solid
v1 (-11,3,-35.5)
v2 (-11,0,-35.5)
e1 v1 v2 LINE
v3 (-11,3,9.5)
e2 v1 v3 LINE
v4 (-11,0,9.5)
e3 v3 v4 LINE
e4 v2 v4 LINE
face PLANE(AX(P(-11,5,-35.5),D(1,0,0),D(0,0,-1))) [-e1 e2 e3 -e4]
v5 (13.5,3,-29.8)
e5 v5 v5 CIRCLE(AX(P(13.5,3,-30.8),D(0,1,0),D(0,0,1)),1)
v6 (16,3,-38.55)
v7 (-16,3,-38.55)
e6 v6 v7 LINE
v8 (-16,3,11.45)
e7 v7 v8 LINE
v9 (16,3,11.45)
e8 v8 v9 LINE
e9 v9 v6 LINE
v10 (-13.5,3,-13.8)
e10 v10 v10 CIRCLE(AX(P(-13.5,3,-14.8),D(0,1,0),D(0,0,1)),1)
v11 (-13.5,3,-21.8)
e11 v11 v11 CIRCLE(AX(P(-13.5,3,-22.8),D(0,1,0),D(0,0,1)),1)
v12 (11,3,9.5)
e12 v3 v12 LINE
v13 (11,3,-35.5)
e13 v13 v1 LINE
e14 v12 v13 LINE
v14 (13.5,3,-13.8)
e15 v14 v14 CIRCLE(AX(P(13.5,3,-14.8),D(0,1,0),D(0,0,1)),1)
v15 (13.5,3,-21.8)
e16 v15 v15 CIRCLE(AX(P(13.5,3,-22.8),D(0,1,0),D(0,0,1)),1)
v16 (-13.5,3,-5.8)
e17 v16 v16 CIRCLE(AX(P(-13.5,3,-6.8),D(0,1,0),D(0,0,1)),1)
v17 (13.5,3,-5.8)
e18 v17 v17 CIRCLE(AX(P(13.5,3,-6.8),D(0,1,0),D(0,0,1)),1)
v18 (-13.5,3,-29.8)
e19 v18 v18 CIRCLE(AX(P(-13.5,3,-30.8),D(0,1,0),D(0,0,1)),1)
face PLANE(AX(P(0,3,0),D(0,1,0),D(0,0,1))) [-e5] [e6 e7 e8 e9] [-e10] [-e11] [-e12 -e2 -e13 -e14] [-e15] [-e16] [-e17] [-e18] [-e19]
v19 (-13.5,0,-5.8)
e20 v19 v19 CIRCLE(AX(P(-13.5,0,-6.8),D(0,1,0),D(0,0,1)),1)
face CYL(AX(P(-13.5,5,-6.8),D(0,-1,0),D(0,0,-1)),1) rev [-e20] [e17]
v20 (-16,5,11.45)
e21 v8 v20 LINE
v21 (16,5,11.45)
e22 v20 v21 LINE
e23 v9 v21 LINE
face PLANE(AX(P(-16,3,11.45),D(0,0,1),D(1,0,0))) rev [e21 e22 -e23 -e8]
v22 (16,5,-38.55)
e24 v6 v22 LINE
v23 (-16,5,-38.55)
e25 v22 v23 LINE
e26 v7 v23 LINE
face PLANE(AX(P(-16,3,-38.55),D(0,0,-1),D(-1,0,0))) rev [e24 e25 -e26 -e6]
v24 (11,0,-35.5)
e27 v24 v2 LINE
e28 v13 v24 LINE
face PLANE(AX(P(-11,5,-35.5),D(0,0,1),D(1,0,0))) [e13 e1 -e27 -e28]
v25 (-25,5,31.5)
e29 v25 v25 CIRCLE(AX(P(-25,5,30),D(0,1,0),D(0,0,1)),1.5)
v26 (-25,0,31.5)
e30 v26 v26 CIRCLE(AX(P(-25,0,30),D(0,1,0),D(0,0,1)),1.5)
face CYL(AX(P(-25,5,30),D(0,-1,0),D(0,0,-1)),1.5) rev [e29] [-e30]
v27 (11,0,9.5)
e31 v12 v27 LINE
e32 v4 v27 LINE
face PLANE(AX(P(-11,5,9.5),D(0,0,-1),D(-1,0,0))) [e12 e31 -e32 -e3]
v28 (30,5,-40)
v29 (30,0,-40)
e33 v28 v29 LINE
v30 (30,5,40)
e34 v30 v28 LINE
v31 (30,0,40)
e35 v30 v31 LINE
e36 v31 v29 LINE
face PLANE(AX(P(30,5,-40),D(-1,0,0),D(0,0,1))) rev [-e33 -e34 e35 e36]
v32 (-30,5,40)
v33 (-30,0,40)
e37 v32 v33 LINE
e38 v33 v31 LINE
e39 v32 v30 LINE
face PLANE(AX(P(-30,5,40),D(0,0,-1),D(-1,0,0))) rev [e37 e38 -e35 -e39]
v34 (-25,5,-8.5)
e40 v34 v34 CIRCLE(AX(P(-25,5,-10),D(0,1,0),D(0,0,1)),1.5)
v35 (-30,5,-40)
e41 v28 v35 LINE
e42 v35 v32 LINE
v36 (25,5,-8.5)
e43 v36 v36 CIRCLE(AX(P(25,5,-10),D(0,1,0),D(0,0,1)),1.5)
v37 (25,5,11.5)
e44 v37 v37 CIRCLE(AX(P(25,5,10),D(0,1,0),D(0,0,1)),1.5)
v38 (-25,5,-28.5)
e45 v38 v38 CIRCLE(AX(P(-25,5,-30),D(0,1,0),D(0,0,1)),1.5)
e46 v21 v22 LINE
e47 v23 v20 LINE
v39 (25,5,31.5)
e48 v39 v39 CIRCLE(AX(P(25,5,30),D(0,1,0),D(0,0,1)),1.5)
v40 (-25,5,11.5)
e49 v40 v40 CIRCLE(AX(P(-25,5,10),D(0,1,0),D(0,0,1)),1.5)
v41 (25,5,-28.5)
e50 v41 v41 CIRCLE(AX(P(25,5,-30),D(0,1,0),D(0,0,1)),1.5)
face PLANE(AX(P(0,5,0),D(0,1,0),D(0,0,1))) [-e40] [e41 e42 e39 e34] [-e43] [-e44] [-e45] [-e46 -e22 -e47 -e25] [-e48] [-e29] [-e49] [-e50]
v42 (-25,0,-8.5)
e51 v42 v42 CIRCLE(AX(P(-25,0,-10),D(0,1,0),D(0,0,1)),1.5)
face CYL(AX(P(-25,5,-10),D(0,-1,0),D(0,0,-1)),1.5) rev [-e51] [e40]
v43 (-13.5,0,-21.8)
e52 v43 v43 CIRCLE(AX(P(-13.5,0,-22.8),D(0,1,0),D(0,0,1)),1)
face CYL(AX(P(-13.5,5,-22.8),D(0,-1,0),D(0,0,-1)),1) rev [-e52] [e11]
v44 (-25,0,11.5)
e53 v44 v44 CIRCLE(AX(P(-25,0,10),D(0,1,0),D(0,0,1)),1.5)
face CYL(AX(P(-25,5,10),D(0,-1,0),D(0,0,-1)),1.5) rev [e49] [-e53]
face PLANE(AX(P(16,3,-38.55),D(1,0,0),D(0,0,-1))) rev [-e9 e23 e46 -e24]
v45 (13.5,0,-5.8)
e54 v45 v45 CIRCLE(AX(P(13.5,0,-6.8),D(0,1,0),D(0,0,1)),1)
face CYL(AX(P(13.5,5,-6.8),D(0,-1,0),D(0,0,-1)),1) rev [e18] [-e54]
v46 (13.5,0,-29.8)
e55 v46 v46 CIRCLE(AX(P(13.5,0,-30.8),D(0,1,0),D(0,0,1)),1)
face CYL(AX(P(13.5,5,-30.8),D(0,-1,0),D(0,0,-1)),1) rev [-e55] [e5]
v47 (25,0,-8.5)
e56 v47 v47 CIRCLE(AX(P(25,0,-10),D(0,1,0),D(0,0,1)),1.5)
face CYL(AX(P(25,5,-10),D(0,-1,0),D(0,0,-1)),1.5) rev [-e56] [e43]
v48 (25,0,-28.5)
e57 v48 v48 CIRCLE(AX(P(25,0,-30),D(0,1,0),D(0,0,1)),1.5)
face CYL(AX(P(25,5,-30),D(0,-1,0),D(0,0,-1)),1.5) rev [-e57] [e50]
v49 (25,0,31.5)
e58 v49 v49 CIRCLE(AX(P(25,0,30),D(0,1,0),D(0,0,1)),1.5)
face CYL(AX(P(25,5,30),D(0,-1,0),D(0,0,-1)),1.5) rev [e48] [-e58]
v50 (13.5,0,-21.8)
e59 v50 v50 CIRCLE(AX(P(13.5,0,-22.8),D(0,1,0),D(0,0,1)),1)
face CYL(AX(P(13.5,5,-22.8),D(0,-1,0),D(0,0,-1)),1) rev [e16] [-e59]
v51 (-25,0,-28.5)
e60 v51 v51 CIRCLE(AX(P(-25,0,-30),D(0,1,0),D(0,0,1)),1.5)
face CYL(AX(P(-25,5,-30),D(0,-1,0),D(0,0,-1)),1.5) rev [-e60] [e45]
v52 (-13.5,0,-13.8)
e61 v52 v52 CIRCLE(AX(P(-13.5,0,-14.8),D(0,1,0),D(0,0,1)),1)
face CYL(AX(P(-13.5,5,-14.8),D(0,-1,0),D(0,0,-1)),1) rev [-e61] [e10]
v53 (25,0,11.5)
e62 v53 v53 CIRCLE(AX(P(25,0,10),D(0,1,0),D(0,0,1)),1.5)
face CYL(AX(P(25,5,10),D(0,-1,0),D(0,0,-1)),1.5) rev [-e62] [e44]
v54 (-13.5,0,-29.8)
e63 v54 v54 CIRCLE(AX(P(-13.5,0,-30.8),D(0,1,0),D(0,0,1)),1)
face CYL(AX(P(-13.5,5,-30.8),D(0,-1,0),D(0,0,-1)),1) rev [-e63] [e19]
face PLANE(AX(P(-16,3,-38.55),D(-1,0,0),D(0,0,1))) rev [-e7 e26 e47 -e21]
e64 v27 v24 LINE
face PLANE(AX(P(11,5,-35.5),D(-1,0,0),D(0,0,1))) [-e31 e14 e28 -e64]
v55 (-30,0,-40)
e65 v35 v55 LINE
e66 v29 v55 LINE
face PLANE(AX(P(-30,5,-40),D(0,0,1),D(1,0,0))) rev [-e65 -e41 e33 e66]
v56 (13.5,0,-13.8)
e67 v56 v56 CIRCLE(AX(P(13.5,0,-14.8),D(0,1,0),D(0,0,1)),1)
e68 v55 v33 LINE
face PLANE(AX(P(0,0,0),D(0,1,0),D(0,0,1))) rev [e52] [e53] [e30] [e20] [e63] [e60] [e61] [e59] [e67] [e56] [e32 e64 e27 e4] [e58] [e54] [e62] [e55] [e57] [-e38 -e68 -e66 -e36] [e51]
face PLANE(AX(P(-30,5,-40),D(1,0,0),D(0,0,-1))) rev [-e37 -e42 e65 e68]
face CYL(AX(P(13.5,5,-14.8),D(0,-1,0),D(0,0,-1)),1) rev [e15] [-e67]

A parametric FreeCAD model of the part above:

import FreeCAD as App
import Part
import Sketcher
Q = App.Units.Quantity


def add_polygon(sketch, points):
    """Adds a closed chain of lines whose ends are joined by coincident constraints."""
    first, n = sketch.GeometryCount, len(points)
    for a, b in zip(points, points[1:] + points[:1]):
        sketch.addGeometry(Part.LineSegment(App.Vector(*a, 0), App.Vector(*b, 0)), False)
    for i in range(n):
        sketch.addConstraint(Sketcher.Constraint("Coincident", first + i, 2, first + (i + 1) % n, 1))

doc = App.newDocument("Part")
body = doc.addObject("PartDesign::Body", "Body")

sketch1 = body.newObject("Sketcher::SketchObject", "Sketch")
sketch1.AttachmentSupport = (doc.getObject("XZ_Plane"), [""])
sketch1.MapMode = "FlatFace"
add_polygon(sketch1, [(-30, -40), (-30, 40), (30, 40), (30, -40)])
sketch1.addGeometry(Part.Circle(App.Vector(-25, 30, 0), App.Vector(0, 0, 1), 1.5), False)
sketch1.addGeometry(Part.Circle(App.Vector(-25, 10, 0), App.Vector(0, 0, 1), 1.5), False)
sketch1.addGeometry(Part.Circle(App.Vector(25, 30, 0), App.Vector(0, 0, 1), 1.5), False)
sketch1.addGeometry(Part.Circle(App.Vector(25, 10, 0), App.Vector(0, 0, 1), 1.5), False)
sketch1.addGeometry(Part.Circle(App.Vector(-25, -10, 0), App.Vector(0, 0, 1), 1.5), False)
sketch1.addGeometry(Part.Circle(App.Vector(-13.5, -6.8, 0), App.Vector(0, 0, 1), 1), False)
sketch1.addGeometry(Part.Circle(App.Vector(-13.5, -14.8, 0), App.Vector(0, 0, 1), 1), False)
sketch1.addGeometry(Part.Circle(App.Vector(-13.5, -22.8, 0), App.Vector(0, 0, 1), 1), False)
sketch1.addGeometry(Part.Circle(App.Vector(-25, -30, 0), App.Vector(0, 0, 1), 1.5), False)
sketch1.addGeometry(Part.Circle(App.Vector(-13.5, -30.8, 0), App.Vector(0, 0, 1), 1), False)
add_polygon(sketch1, [(11, 9.5), (-11, 9.5), (-11, -35.5), (11, -35.5)])
sketch1.addGeometry(Part.Circle(App.Vector(13.5, -6.8, 0), App.Vector(0, 0, 1), 1), False)
sketch1.addGeometry(Part.Circle(App.Vector(25, -10, 0), App.Vector(0, 0, 1), 1.5), False)
sketch1.addGeometry(Part.Circle(App.Vector(13.5, -14.8, 0), App.Vector(0, 0, 1), 1), False)
sketch1.addGeometry(Part.Circle(App.Vector(13.5, -22.8, 0), App.Vector(0, 0, 1), 1), False)
sketch1.addGeometry(Part.Circle(App.Vector(13.5, -30.8, 0), App.Vector(0, 0, 1), 1), False)
sketch1.addGeometry(Part.Circle(App.Vector(25, -30, 0), App.Vector(0, 0, 1), 1.5), False)
sketch1.addConstraint(Sketcher.Constraint("Vertical", 0))
sketch1.addConstraint(Sketcher.Constraint("Horizontal", 1))
sketch1.addConstraint(Sketcher.Constraint("Vertical", 2))
sketch1.addConstraint(Sketcher.Constraint("Horizontal", 3))
sketch1.addConstraint(Sketcher.Constraint("Horizontal", 14))
sketch1.addConstraint(Sketcher.Constraint("Vertical", 15))
sketch1.addConstraint(Sketcher.Constraint("Horizontal", 16))
sketch1.addConstraint(Sketcher.Constraint("Vertical", 17))
sketch1.addConstraint(Sketcher.Constraint("Equal", 4, 5))
sketch1.addConstraint(Sketcher.Constraint("Equal", 5, 6))
sketch1.addConstraint(Sketcher.Constraint("Equal", 6, 7))
sketch1.addConstraint(Sketcher.Constraint("Equal", 7, 8))
sketch1.addConstraint(Sketcher.Constraint("Equal", 9, 10))
sketch1.addConstraint(Sketcher.Constraint("Equal", 10, 11))
sketch1.addConstraint(Sketcher.Constraint("Equal", 8, 12))
sketch1.addConstraint(Sketcher.Constraint("Equal", 11, 13))
sketch1.addConstraint(Sketcher.Constraint("Equal", 13, 18))
sketch1.addConstraint(Sketcher.Constraint("Equal", 12, 19))
sketch1.addConstraint(Sketcher.Constraint("Equal", 18, 20))
sketch1.addConstraint(Sketcher.Constraint("Equal", 20, 21))
sketch1.addConstraint(Sketcher.Constraint("Equal", 21, 22))
sketch1.addConstraint(Sketcher.Constraint("Equal", 19, 23))
sketch1.addConstraint(Sketcher.Constraint("Symmetric", 7, 3, 8, 3, -1, 1))
sketch1.addConstraint(Sketcher.Constraint("Symmetric", 6, 3, 12, 3, -1, 1))
sketch1.addConstraint(Sketcher.Constraint("Symmetric", 5, 3, 19, 3, -1, 1))
sketch1.addConstraint(Sketcher.Constraint("Symmetric", 4, 3, 23, 3, -1, 1))
sketch1.addConstraint(Sketcher.Constraint("Symmetric", 0, 2, 2, 2, -1, 1))
sketch1.addConstraint(Sketcher.Constraint("Symmetric", 4, 3, 6, 3, -2))
sketch1.addConstraint(Sketcher.Constraint("Symmetric", 5, 3, 7, 3, -2))
sketch1.addConstraint(Sketcher.Constraint("Symmetric", 9, 3, 18, 3, -2))
sketch1.addConstraint(Sketcher.Constraint("Symmetric", 10, 3, 20, 3, -2))
sketch1.addConstraint(Sketcher.Constraint("Symmetric", 11, 3, 21, 3, -2))
sketch1.addConstraint(Sketcher.Constraint("Symmetric", 13, 3, 22, 3, -2))
sketch1.addConstraint(Sketcher.Constraint("Vertical", 4, 3, 5, 3))
sketch1.addConstraint(Sketcher.Constraint("Vertical", 9, 3, 10, 3))
sketch1.addConstraint(Sketcher.Constraint("Vertical", 10, 3, 11, 3))
sketch1.addConstraint(Sketcher.Constraint("Vertical", 11, 3, 13, 3))
sketch1.addConstraint(Sketcher.Constraint("Diameter", 4, Q("3 mm")))
sketch1.addConstraint(Sketcher.Constraint("Diameter", 9, Q("2 mm")))
sketch1.addConstraint(Sketcher.Constraint("DistanceX", 1, 1, 1, 2, Q("60 mm")))
sketch1.addConstraint(Sketcher.Constraint("DistanceX", 14, 2, 14, 1, Q("22 mm")))
sketch1.addConstraint(Sketcher.Constraint("DistanceY", 0, 1, 0, 2, Q("80 mm")))
sketch1.addConstraint(Sketcher.Constraint("DistanceY", 15, 2, 15, 1, Q("45 mm")))
sketch1.addConstraint(Sketcher.Constraint("DistanceX", 4, 3, -1, 1, Q("25 mm")))
sketch1.addConstraint(Sketcher.Constraint("DistanceY", -1, 1, 4, 3, Q("30 mm")))
sketch1.addConstraint(Sketcher.Constraint("DistanceY", -1, 1, 5, 3, Q("10 mm")))
sketch1.addConstraint(Sketcher.Constraint("DistanceX", 14, 2, -1, 1, Q("11 mm")))
sketch1.addConstraint(Sketcher.Constraint("DistanceY", 10, 3, 9, 3, Q("8 mm")))
sketch1.addConstraint(Sketcher.Constraint("DistanceY", 11, 3, 10, 3, Q("8 mm")))
sketch1.addConstraint(Sketcher.Constraint("DistanceY", 13, 3, 11, 3, Q("8 mm")))
sketch1.addConstraint(Sketcher.Constraint("DistanceX", 9, 3, 18, 3, Q("27 mm")))
sketch1.addConstraint(Sketcher.Constraint("DistanceY", 9, 3, -1, 1, Q("6.8 mm")))
sketch1.addConstraint(Sketcher.Constraint("DistanceY", -1, 1, 14, 2, Q("9.5 mm")))
pad1 = body.newObject("PartDesign::Pad", "Pad")
pad1.Profile = sketch1
pad1.Length = 5
pad1.Reversed = True

sketch2 = body.newObject("Sketcher::SketchObject", "Sketch001")
sketch2.AttachmentSupport = (doc.getObject("XZ_Plane"), [""])
sketch2.MapMode = "FlatFace"
sketch2.AttachmentOffset = App.Placement(App.Vector(0, 0, -5), App.Rotation())
add_polygon(sketch2, [(-16, -38.55), (-16, 11.45), (16, 11.45), (16, -38.55)])
sketch2.addConstraint(Sketcher.Constraint("Vertical", 0))
sketch2.addConstraint(Sketcher.Constraint("Horizontal", 1))
sketch2.addConstraint(Sketcher.Constraint("Vertical", 2))
sketch2.addConstraint(Sketcher.Constraint("Horizontal", 3))
sketch2.addConstraint(Sketcher.Constraint("DistanceX", 1, 1, 1, 2, Q("32 mm")))
sketch2.addConstraint(Sketcher.Constraint("DistanceY", 0, 1, 0, 2, Q("50 mm")))
sketch2.addConstraint(Sketcher.Constraint("DistanceX", 0, 2, -1, 1, Q("16 mm")))
sketch2.addConstraint(Sketcher.Constraint("DistanceY", -1, 1, 0, 2, Q("11.45 mm")))
pocket1 = body.newObject("PartDesign::Pocket", "Pocket")
pocket1.Profile = sketch2
pocket1.Length = 2
pocket1.Reversed = True

doc.recompute()
